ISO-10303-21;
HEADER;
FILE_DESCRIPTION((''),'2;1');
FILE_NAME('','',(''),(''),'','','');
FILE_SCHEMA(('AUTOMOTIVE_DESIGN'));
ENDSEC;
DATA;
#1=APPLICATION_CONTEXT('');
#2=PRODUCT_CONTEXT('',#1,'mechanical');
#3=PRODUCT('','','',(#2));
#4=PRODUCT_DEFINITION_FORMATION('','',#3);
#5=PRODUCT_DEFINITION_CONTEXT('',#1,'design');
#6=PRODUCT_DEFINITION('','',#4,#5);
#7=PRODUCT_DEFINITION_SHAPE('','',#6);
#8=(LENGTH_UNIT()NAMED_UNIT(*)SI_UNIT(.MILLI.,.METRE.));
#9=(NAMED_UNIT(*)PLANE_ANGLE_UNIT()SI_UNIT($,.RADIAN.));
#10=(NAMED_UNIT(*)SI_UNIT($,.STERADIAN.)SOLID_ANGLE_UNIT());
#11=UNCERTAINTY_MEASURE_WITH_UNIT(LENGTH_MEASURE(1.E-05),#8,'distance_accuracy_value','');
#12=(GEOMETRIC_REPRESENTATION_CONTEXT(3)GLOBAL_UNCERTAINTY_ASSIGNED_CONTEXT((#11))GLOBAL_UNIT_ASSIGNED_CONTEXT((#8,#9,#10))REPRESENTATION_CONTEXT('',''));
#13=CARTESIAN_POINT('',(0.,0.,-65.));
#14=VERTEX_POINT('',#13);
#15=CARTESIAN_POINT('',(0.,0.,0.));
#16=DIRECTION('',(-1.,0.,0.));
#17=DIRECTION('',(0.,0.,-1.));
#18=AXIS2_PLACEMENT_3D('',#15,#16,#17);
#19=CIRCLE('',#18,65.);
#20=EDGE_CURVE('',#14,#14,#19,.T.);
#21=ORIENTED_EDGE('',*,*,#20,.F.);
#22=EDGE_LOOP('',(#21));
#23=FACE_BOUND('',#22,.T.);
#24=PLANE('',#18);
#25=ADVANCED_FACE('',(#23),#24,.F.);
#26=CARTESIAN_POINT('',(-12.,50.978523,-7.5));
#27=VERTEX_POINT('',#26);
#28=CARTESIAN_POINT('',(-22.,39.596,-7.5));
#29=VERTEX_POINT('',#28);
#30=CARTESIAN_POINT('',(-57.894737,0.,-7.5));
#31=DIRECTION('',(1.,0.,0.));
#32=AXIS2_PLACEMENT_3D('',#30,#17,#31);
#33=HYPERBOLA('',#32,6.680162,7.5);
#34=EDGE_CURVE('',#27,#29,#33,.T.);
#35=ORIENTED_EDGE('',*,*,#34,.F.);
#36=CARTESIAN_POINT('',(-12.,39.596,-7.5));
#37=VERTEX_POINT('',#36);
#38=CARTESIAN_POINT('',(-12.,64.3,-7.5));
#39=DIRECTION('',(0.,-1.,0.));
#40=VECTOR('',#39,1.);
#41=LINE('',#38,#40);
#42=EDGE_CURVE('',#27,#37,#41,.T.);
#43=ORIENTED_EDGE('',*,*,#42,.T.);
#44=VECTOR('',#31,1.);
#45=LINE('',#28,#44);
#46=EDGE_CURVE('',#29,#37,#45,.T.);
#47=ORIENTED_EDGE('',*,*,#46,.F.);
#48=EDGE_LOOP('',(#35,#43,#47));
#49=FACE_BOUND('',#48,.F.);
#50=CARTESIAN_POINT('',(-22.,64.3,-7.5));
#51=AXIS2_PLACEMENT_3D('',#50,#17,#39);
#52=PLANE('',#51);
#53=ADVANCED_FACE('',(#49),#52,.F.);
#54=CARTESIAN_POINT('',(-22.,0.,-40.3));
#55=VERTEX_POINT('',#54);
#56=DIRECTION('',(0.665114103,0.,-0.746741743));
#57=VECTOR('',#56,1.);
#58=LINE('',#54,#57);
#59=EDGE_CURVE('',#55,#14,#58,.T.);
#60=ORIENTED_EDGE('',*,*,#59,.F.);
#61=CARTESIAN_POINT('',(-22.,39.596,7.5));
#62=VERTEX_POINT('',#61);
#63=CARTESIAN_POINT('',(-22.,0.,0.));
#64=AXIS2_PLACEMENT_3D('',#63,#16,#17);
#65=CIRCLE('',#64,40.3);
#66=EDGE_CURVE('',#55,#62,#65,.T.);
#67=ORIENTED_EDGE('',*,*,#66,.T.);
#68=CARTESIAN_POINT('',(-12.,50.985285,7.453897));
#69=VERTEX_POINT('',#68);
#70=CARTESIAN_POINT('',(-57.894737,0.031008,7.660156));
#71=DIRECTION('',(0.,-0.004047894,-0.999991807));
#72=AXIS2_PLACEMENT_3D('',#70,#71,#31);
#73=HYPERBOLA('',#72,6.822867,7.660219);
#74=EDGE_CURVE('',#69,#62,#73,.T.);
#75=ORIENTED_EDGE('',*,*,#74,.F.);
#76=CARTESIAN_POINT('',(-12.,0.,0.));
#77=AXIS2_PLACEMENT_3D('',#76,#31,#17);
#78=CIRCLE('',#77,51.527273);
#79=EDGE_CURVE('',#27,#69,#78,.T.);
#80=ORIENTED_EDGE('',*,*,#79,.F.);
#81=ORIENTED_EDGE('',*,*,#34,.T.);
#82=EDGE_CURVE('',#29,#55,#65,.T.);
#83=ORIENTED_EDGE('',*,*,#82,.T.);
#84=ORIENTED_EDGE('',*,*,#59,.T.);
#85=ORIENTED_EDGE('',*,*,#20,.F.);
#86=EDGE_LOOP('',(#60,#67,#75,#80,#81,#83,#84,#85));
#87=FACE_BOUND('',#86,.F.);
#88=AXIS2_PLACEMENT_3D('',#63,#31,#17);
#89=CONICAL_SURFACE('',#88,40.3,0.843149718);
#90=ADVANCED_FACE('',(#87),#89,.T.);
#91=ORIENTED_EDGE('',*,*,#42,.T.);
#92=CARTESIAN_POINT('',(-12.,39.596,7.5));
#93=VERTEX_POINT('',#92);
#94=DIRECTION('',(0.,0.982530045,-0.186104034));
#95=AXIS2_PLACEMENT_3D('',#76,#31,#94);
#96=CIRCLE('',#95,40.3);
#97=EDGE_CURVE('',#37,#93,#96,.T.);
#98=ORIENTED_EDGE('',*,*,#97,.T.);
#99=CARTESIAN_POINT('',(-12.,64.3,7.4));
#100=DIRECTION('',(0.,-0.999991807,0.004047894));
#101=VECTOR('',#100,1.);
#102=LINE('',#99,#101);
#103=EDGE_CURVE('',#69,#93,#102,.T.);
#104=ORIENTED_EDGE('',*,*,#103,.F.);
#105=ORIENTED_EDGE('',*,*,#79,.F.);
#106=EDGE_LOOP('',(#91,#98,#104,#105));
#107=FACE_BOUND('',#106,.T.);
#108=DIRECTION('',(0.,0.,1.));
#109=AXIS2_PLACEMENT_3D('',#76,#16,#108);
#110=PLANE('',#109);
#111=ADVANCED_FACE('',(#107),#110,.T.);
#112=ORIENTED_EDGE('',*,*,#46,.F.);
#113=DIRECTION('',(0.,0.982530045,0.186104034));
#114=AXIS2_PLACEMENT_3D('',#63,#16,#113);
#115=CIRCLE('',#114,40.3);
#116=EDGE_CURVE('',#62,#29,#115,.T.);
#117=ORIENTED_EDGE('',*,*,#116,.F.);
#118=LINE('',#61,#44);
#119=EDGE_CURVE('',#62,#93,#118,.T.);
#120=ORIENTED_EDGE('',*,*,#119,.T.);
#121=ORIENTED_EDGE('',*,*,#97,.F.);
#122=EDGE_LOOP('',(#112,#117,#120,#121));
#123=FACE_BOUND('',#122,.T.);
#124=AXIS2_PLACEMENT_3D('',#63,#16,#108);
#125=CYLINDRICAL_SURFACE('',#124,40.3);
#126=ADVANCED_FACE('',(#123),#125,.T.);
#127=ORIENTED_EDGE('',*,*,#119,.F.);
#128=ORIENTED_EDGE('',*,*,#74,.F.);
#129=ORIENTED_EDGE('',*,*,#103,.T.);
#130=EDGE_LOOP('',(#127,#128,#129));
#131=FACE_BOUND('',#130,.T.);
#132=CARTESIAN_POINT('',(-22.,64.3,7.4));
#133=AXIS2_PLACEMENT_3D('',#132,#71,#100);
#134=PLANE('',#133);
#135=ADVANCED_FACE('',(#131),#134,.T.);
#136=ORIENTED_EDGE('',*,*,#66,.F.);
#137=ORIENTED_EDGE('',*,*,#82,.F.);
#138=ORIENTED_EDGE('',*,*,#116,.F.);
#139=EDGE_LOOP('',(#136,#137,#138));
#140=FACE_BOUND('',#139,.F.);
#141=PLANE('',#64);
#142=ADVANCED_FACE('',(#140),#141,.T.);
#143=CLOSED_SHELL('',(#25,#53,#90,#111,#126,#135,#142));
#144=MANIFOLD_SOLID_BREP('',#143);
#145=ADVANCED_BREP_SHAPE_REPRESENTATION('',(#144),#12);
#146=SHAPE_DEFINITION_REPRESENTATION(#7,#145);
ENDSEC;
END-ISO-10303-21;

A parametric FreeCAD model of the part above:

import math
import FreeCAD as App
import Part
import Sketcher

V = App.Vector

doc = App.newDocument("Part")
body = doc.addObject("PartDesign::Body", "Body")

sketch1 = doc.addObject("Sketcher::SketchObject", "Sketch")
body.addObject(sketch1)
sketch1.AttachmentSupport = (doc.XZ_Plane, [""])
sketch1.MapMode = "FlatFace"
sketch1.addGeometry([
    Part.LineSegment(V(-22, 0, 0), V(0, 0, 0)),
    Part.LineSegment(V(0, 0, 0), V(0, -65, 0)),
    Part.LineSegment(V(0, -65, 0), V(-22, -40.3, 0)),
    Part.LineSegment(V(-22, -40.3, 0), V(-22, 0, 0)),
], False)
sketch1.addConstraint([
    Sketcher.Constraint("Coincident", 0, 2, 1, 1),
    Sketcher.Constraint("Coincident", 1, 2, 2, 1),
    Sketcher.Constraint("Coincident", 2, 2, 3, 1),
    Sketcher.Constraint("Coincident", 3, 2, 0, 1),
    Sketcher.Constraint("Horizontal", 0),
    Sketcher.Constraint("Vertical", 1),
    Sketcher.Constraint("Vertical", 3),
    Sketcher.Constraint("Coincident", 0, 2, -1, 1),
    Sketcher.Constraint("DistanceX", 0, 1, 0, 2, 22.0),
    Sketcher.Constraint("DistanceY", 1, 2, 1, 1, 65.0),
    Sketcher.Constraint("DistanceY", 3, 1, 3, 2, 40.3),
])
revolution = doc.addObject("PartDesign::Revolution", "Revolution")
body.addObject(revolution)
revolution.Profile = sketch1
revolution.ReferenceAxis = (sketch1, ["H_Axis"])
revolution.Angle = 360

sketch2 = doc.addObject("Sketcher::SketchObject", "Sketch001")
body.addObject(sketch2)
sketch2.AttachmentSupport = (doc.YZ_Plane, [""])
sketch2.MapMode = "FlatFace"
sketch2.AttachmentOffset = App.Placement(V(0, 0, -22), App.Rotation())
sketch2.addGeometry([
    Part.LineSegment(V(39.596, 7.5, 0), V(64.3, 7.4, 0)),
    Part.LineSegment(V(64.3, 7.4, 0), V(64.3, -7.5, 0)),
    Part.LineSegment(V(64.3, -7.5, 0), V(39.596, -7.5, 0)),
    Part.ArcOfCircle(Part.Circle(V(0, 0, 0), V(0, 0, 1), 40.3), math.radians(-10.725507), math.radians(10.725507)),
], False)
sketch2.addConstraint([
    Sketcher.Constraint("Coincident", 0, 2, 1, 1),
    Sketcher.Constraint("Coincident", 1, 2, 2, 1),
    Sketcher.Constraint("Coincident", 2, 2, 3, 1),
    Sketcher.Constraint("Coincident", 3, 2, 0, 1),
    Sketcher.Constraint("Vertical", 1),
    Sketcher.Constraint("Horizontal", 2),
    Sketcher.Constraint("Coincident", 3, 3, -1, 1),
    Sketcher.Constraint("Vertical", 2, 2, 3, 2),
    Sketcher.Constraint("DistanceY", -1, 1, 0, 2, 7.4),
    Sketcher.Constraint("DistanceY", 1, 2, -1, 1, 7.5),
    Sketcher.Constraint("Radius", 3, 40.3),
    Sketcher.Constraint("DistanceX", -1, 1, 0, 2, 64.3),
])
pocket1 = doc.addObject("PartDesign::Pocket", "Pocket")
body.addObject(pocket1)
pocket1.Profile = sketch2
pocket1.Length = 10
pocket1.Reversed = True

doc.recompute()
